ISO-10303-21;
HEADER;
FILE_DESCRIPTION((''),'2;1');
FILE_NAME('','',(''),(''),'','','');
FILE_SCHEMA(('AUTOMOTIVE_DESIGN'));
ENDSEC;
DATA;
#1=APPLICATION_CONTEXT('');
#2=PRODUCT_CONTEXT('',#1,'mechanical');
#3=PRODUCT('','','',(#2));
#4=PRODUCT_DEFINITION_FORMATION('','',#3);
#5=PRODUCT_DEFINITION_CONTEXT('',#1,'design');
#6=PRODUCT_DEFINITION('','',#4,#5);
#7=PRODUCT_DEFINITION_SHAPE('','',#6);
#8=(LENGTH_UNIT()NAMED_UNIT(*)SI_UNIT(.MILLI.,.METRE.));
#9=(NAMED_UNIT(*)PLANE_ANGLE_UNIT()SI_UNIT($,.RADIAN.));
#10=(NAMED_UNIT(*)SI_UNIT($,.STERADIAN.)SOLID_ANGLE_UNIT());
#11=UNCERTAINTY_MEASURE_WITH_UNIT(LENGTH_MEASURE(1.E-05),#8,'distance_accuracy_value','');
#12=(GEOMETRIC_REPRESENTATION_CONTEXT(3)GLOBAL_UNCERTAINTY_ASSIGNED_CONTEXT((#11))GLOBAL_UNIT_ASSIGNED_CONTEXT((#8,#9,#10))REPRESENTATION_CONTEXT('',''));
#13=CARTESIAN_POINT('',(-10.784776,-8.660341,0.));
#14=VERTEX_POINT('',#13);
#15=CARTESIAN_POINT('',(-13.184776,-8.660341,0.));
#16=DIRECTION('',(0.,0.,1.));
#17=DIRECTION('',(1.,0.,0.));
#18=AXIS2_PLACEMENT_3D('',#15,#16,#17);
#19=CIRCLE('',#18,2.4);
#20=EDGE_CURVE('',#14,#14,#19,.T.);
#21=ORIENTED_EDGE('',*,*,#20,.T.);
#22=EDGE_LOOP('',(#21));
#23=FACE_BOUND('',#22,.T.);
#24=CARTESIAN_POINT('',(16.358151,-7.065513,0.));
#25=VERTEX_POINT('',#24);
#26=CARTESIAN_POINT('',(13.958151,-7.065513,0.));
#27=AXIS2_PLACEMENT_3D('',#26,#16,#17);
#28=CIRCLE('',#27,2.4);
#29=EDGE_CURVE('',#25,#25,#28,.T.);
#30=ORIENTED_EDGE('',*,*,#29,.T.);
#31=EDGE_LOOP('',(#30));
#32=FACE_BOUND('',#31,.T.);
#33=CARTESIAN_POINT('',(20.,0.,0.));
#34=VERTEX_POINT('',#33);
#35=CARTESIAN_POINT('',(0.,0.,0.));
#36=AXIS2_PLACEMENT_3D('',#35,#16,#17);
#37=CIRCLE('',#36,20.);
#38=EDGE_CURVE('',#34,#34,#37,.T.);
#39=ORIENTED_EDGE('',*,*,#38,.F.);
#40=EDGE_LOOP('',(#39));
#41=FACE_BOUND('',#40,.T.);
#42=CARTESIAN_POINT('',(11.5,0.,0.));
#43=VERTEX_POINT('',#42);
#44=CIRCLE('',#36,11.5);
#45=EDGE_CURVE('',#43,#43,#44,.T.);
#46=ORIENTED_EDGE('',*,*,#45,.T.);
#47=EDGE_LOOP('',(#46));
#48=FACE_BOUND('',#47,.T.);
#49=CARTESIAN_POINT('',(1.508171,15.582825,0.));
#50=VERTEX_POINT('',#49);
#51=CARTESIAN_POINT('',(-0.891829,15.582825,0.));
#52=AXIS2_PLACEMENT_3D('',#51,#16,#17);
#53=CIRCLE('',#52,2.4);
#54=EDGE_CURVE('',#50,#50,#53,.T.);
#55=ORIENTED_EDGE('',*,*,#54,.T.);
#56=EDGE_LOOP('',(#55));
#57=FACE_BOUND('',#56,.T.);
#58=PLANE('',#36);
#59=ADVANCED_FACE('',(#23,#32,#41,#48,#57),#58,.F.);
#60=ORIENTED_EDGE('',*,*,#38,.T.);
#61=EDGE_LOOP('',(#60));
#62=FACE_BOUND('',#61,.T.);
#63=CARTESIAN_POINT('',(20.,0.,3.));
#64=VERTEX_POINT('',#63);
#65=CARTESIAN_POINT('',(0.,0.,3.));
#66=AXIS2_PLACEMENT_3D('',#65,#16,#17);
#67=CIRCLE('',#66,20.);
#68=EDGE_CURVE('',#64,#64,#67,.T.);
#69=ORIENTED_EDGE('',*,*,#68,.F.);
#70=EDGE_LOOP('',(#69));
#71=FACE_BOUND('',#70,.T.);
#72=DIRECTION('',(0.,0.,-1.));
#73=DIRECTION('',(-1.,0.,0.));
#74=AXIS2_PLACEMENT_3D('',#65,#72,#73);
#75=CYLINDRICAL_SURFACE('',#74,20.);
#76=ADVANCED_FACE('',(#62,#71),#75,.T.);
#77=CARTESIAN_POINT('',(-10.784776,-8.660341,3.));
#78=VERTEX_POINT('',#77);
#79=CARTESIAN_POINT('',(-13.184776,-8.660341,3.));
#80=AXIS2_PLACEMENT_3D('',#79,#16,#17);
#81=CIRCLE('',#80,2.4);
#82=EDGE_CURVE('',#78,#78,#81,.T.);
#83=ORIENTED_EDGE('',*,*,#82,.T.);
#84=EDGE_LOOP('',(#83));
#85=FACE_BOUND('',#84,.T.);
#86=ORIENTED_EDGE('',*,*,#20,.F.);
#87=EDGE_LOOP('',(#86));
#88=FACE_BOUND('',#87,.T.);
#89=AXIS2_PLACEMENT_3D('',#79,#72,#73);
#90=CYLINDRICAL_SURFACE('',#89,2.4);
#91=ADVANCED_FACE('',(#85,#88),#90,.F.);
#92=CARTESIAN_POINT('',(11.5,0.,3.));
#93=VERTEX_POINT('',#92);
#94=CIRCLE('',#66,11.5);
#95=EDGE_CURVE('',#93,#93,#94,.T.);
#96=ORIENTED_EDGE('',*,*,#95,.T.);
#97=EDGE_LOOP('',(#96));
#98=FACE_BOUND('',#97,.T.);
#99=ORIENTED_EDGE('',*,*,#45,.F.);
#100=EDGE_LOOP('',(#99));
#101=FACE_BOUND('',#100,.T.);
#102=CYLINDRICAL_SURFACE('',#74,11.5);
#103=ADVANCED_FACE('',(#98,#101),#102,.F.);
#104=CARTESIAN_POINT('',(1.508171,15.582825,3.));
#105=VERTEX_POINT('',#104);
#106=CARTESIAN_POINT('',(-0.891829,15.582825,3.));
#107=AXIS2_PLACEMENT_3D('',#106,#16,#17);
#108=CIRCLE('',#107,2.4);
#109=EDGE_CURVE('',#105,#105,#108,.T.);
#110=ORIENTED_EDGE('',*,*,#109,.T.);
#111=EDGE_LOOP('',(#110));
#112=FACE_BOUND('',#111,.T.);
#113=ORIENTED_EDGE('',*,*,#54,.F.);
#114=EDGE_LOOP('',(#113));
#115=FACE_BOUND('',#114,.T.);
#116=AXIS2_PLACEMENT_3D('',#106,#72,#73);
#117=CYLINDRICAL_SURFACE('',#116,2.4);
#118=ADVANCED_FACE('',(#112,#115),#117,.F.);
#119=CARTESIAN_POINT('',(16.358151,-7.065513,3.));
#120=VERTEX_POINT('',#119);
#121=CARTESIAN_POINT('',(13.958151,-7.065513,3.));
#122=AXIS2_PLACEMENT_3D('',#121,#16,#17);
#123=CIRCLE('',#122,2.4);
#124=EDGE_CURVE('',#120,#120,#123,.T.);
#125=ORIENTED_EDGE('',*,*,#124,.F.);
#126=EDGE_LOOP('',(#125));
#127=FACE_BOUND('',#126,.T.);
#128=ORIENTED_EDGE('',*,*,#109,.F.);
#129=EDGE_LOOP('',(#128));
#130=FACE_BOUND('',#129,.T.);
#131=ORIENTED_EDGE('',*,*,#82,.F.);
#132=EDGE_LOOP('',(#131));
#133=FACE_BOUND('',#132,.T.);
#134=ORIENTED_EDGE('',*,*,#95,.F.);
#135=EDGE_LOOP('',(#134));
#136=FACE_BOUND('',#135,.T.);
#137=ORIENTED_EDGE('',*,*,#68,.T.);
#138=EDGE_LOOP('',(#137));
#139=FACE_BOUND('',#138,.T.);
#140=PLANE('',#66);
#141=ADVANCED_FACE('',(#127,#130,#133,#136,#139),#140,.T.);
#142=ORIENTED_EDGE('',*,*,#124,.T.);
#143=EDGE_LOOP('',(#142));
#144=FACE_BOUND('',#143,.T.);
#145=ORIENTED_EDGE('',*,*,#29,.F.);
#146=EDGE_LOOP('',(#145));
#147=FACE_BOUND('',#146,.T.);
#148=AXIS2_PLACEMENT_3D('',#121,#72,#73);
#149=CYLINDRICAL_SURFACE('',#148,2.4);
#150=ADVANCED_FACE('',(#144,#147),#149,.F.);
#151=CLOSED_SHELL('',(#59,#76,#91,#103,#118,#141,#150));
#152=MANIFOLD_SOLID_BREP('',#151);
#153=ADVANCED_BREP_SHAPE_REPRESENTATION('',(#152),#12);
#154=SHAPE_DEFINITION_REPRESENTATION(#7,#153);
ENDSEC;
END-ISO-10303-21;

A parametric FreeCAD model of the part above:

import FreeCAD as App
import Part
import Sketcher

V = App.Vector

doc = App.newDocument("Part")
params = doc.addObject("Spreadsheet::Sheet", "Params")
for row, (alias, value) in enumerate([
    ("sketch1_diameter", "40 mm"),
    ("sketch1_diameter2", "23 mm"),
    ("sketch1_diameter3", "4.8 mm"),
    ("pad1_length", "3 mm"),
], start=1):
    params.set(f"A{row}", alias)
    params.set(f"B{row}", "=" + value)
    params.setAlias(f"B{row}", alias)

body = doc.addObject("PartDesign::Body", "Body")

# Sketch on XY plane
sketch1 = body.newObject("Sketcher::SketchObject", "Sketch")
sketch1.AttachmentSupport = (doc.getObject("XY_Plane"), [""])
sketch1.MapMode = "FlatFace"
sketch1.addGeometry(Part.Circle(V(0, 0, 0), V(0, 0, 1), 20), False)
sketch1.addGeometry(Part.Circle(V(-13.2, -8.7, 0), V(0, 0, 1), 2.4), False)
sketch1.addGeometry(Part.Circle(V(0, 0, 0), V(0, 0, 1), 11.5), False)
sketch1.addGeometry(Part.Circle(V(14, -7.1, 0), V(0, 0, 1), 2.4), False)
sketch1.addGeometry(Part.Circle(V(-0.9, 15.6, 0), V(0, 0, 1), 2.4), False)
sketch1.addConstraint(Sketcher.Constraint("Coincident", 0, 3, -1, 1))
sketch1.addConstraint(Sketcher.Constraint("Coincident", 2, 3, -1, 1))
sketch1.addConstraint(Sketcher.Constraint("Equal", 1, 3))
sketch1.addConstraint(Sketcher.Constraint("Equal", 3, 4))
sketch1.addConstraint(Sketcher.Constraint("Diameter", 0, 40.0))
sketch1.addConstraint(Sketcher.Constraint("Diameter", 2, 23.0))
sketch1.addConstraint(Sketcher.Constraint("Diameter", 1, 4.8))
sketch1.addConstraint(Sketcher.Constraint("DistanceY", 1, 3, -1, 1, 8.660341))
sketch1.addConstraint(Sketcher.Constraint("DistanceX", -1, 1, 3, 3, 13.958151))
sketch1.addConstraint(Sketcher.Constraint("DistanceX", 4, 3, -1, 1, 0.891829))
sketch1.addConstraint(Sketcher.Constraint("DistanceY", 3, 3, 4, 3, 22.648338))
sketch1.addConstraint(Sketcher.Constraint("DistanceX", 1, 3, -1, 1, 13.184776))
sketch1.addConstraint(Sketcher.Constraint("DistanceY", 3, 3, -1, 1, 7.065513))
sketch1.setExpression("Constraints[4]", "Params.sketch1_diameter")
sketch1.setExpression("Constraints[5]", "Params.sketch1_diameter2")
sketch1.setExpression("Constraints[6]", "Params.sketch1_diameter3")
pad1 = body.newObject("PartDesign::Pad", "Pad")
pad1.Profile = sketch1
pad1.setExpression("Length", "Params.pad1_length")

doc.recompute()
